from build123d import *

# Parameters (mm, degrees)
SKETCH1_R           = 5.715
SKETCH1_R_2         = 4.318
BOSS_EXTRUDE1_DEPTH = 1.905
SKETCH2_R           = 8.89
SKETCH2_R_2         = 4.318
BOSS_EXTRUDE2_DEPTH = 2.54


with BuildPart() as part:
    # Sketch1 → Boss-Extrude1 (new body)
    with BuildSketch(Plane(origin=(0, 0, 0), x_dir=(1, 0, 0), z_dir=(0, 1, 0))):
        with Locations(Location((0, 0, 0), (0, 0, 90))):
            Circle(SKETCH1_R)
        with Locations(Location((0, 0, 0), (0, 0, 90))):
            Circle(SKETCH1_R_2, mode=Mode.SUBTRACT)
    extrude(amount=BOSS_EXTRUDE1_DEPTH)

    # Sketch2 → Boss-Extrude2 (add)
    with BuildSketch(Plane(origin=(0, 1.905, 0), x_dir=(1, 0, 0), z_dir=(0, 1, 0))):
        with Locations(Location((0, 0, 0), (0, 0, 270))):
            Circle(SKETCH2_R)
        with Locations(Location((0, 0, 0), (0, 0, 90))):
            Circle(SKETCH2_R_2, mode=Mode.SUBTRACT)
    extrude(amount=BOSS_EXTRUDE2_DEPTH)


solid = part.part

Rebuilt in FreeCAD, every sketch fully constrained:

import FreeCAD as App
import Part
import Sketcher
from FreeCAD import Vector
Q = App.Units.Quantity

doc = App.newDocument("Part")
body = doc.addObject("PartDesign::Body", "Body")

sketch1 = doc.addObject("Sketcher::SketchObject", "Sketch")
body.addObject(sketch1)
sketch1.AttachmentSupport = (doc.XZ_Plane, [""])
sketch1.MapMode = "FlatFace"
sketch1.addGeometry(Part.Circle(Vector(0, 0, 0), Vector(0, 0, 1), 5.715), False)
sketch1.addGeometry(Part.Circle(Vector(0, 0, 0), Vector(0, 0, 1), 4.318), False)
sketch1.addConstraint(Sketcher.Constraint("Coincident", 0, 3, -1, 1))
sketch1.addConstraint(Sketcher.Constraint("Coincident", 1, 3, -1, 1))
sketch1.addConstraint(Sketcher.Constraint("Diameter", 0, Q("0.45 in")))
sketch1.addConstraint(Sketcher.Constraint("Diameter", 1, Q("0.34 in")))
pad1 = doc.addObject("PartDesign::Pad", "Pad")
body.addObject(pad1)
pad1.Profile = sketch1
pad1.Length = Q("0.075 in")
pad1.Reversed = True

sketch2 = doc.addObject("Sketcher::SketchObject", "Sketch001")
body.addObject(sketch2)
sketch2.AttachmentSupport = (doc.XZ_Plane, [""])
sketch2.MapMode = "FlatFace"
sketch2.AttachmentOffset = App.Placement(Vector(0, 0, -0.075 * 25.4), App.Rotation())
sketch2.addGeometry(Part.Circle(Vector(0, 0, 0), Vector(0, 0, 1), 8.89), False)
sketch2.addGeometry(Part.Circle(Vector(0, 0, 0), Vector(0, 0, 1), 4.318), False)
sketch2.addConstraint(Sketcher.Constraint("Coincident", 0, 3, -1, 1))
sketch2.addConstraint(Sketcher.Constraint("Coincident", 1, 3, -1, 1))
sketch2.addConstraint(Sketcher.Constraint("Diameter", 0, Q("0.7 in")))
sketch2.addConstraint(Sketcher.Constraint("Diameter", 1, Q("0.34 in")))
pad2 = doc.addObject("PartDesign::Pad", "Pad001")
body.addObject(pad2)
pad2.Profile = sketch2
pad2.Length = Q("0.1 in")
pad2.Reversed = True

doc.recompute()
